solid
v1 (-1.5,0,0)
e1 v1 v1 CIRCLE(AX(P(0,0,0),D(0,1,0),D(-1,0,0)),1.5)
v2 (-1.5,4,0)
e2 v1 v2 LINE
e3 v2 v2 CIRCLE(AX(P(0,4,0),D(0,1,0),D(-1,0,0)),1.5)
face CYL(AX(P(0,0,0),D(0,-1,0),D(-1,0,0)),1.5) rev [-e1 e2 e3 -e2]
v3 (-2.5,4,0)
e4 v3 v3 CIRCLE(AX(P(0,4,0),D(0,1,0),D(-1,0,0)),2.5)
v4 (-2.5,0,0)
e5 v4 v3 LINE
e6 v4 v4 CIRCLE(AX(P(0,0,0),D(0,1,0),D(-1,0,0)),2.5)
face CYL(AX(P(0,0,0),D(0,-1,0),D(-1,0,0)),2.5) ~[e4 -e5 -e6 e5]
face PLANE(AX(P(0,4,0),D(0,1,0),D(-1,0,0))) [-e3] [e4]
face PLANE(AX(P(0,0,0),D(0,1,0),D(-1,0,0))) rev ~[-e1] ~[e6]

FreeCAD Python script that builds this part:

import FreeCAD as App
import Part
import Sketcher
Q = App.Units.Quantity

doc = App.newDocument("Part")
body = doc.addObject("PartDesign::Body", "Body")

# Sketch on XZ plane
sketch1 = body.newObject("Sketcher::SketchObject", "Sketch")
sketch1.AttachmentSupport = (doc.getObject("XZ_Plane"), [""])
sketch1.MapMode = "FlatFace"
sketch1.addGeometry(Part.Circle(App.Vector(0, 0, 0), App.Vector(0, 0, 1), 2.5), False)
sketch1.addGeometry(Part.Circle(App.Vector(0, 0, 0), App.Vector(0, 0, 1), 1.5), False)
sketch1.addConstraint(Sketcher.Constraint("Coincident", 0, 3, -1, 1))
sketch1.addConstraint(Sketcher.Constraint("Coincident", 1, 3, -1, 1))
sketch1.addConstraint(Sketcher.Constraint("Diameter", 0, Q("5 mm")))
sketch1.addConstraint(Sketcher.Constraint("Diameter", 1, Q("3 mm")))
pad1 = body.newObject("PartDesign::Pad", "Pad")
pad1.Profile = sketch1
pad1.Length = 4
pad1.Reversed = True

doc.recompute()
